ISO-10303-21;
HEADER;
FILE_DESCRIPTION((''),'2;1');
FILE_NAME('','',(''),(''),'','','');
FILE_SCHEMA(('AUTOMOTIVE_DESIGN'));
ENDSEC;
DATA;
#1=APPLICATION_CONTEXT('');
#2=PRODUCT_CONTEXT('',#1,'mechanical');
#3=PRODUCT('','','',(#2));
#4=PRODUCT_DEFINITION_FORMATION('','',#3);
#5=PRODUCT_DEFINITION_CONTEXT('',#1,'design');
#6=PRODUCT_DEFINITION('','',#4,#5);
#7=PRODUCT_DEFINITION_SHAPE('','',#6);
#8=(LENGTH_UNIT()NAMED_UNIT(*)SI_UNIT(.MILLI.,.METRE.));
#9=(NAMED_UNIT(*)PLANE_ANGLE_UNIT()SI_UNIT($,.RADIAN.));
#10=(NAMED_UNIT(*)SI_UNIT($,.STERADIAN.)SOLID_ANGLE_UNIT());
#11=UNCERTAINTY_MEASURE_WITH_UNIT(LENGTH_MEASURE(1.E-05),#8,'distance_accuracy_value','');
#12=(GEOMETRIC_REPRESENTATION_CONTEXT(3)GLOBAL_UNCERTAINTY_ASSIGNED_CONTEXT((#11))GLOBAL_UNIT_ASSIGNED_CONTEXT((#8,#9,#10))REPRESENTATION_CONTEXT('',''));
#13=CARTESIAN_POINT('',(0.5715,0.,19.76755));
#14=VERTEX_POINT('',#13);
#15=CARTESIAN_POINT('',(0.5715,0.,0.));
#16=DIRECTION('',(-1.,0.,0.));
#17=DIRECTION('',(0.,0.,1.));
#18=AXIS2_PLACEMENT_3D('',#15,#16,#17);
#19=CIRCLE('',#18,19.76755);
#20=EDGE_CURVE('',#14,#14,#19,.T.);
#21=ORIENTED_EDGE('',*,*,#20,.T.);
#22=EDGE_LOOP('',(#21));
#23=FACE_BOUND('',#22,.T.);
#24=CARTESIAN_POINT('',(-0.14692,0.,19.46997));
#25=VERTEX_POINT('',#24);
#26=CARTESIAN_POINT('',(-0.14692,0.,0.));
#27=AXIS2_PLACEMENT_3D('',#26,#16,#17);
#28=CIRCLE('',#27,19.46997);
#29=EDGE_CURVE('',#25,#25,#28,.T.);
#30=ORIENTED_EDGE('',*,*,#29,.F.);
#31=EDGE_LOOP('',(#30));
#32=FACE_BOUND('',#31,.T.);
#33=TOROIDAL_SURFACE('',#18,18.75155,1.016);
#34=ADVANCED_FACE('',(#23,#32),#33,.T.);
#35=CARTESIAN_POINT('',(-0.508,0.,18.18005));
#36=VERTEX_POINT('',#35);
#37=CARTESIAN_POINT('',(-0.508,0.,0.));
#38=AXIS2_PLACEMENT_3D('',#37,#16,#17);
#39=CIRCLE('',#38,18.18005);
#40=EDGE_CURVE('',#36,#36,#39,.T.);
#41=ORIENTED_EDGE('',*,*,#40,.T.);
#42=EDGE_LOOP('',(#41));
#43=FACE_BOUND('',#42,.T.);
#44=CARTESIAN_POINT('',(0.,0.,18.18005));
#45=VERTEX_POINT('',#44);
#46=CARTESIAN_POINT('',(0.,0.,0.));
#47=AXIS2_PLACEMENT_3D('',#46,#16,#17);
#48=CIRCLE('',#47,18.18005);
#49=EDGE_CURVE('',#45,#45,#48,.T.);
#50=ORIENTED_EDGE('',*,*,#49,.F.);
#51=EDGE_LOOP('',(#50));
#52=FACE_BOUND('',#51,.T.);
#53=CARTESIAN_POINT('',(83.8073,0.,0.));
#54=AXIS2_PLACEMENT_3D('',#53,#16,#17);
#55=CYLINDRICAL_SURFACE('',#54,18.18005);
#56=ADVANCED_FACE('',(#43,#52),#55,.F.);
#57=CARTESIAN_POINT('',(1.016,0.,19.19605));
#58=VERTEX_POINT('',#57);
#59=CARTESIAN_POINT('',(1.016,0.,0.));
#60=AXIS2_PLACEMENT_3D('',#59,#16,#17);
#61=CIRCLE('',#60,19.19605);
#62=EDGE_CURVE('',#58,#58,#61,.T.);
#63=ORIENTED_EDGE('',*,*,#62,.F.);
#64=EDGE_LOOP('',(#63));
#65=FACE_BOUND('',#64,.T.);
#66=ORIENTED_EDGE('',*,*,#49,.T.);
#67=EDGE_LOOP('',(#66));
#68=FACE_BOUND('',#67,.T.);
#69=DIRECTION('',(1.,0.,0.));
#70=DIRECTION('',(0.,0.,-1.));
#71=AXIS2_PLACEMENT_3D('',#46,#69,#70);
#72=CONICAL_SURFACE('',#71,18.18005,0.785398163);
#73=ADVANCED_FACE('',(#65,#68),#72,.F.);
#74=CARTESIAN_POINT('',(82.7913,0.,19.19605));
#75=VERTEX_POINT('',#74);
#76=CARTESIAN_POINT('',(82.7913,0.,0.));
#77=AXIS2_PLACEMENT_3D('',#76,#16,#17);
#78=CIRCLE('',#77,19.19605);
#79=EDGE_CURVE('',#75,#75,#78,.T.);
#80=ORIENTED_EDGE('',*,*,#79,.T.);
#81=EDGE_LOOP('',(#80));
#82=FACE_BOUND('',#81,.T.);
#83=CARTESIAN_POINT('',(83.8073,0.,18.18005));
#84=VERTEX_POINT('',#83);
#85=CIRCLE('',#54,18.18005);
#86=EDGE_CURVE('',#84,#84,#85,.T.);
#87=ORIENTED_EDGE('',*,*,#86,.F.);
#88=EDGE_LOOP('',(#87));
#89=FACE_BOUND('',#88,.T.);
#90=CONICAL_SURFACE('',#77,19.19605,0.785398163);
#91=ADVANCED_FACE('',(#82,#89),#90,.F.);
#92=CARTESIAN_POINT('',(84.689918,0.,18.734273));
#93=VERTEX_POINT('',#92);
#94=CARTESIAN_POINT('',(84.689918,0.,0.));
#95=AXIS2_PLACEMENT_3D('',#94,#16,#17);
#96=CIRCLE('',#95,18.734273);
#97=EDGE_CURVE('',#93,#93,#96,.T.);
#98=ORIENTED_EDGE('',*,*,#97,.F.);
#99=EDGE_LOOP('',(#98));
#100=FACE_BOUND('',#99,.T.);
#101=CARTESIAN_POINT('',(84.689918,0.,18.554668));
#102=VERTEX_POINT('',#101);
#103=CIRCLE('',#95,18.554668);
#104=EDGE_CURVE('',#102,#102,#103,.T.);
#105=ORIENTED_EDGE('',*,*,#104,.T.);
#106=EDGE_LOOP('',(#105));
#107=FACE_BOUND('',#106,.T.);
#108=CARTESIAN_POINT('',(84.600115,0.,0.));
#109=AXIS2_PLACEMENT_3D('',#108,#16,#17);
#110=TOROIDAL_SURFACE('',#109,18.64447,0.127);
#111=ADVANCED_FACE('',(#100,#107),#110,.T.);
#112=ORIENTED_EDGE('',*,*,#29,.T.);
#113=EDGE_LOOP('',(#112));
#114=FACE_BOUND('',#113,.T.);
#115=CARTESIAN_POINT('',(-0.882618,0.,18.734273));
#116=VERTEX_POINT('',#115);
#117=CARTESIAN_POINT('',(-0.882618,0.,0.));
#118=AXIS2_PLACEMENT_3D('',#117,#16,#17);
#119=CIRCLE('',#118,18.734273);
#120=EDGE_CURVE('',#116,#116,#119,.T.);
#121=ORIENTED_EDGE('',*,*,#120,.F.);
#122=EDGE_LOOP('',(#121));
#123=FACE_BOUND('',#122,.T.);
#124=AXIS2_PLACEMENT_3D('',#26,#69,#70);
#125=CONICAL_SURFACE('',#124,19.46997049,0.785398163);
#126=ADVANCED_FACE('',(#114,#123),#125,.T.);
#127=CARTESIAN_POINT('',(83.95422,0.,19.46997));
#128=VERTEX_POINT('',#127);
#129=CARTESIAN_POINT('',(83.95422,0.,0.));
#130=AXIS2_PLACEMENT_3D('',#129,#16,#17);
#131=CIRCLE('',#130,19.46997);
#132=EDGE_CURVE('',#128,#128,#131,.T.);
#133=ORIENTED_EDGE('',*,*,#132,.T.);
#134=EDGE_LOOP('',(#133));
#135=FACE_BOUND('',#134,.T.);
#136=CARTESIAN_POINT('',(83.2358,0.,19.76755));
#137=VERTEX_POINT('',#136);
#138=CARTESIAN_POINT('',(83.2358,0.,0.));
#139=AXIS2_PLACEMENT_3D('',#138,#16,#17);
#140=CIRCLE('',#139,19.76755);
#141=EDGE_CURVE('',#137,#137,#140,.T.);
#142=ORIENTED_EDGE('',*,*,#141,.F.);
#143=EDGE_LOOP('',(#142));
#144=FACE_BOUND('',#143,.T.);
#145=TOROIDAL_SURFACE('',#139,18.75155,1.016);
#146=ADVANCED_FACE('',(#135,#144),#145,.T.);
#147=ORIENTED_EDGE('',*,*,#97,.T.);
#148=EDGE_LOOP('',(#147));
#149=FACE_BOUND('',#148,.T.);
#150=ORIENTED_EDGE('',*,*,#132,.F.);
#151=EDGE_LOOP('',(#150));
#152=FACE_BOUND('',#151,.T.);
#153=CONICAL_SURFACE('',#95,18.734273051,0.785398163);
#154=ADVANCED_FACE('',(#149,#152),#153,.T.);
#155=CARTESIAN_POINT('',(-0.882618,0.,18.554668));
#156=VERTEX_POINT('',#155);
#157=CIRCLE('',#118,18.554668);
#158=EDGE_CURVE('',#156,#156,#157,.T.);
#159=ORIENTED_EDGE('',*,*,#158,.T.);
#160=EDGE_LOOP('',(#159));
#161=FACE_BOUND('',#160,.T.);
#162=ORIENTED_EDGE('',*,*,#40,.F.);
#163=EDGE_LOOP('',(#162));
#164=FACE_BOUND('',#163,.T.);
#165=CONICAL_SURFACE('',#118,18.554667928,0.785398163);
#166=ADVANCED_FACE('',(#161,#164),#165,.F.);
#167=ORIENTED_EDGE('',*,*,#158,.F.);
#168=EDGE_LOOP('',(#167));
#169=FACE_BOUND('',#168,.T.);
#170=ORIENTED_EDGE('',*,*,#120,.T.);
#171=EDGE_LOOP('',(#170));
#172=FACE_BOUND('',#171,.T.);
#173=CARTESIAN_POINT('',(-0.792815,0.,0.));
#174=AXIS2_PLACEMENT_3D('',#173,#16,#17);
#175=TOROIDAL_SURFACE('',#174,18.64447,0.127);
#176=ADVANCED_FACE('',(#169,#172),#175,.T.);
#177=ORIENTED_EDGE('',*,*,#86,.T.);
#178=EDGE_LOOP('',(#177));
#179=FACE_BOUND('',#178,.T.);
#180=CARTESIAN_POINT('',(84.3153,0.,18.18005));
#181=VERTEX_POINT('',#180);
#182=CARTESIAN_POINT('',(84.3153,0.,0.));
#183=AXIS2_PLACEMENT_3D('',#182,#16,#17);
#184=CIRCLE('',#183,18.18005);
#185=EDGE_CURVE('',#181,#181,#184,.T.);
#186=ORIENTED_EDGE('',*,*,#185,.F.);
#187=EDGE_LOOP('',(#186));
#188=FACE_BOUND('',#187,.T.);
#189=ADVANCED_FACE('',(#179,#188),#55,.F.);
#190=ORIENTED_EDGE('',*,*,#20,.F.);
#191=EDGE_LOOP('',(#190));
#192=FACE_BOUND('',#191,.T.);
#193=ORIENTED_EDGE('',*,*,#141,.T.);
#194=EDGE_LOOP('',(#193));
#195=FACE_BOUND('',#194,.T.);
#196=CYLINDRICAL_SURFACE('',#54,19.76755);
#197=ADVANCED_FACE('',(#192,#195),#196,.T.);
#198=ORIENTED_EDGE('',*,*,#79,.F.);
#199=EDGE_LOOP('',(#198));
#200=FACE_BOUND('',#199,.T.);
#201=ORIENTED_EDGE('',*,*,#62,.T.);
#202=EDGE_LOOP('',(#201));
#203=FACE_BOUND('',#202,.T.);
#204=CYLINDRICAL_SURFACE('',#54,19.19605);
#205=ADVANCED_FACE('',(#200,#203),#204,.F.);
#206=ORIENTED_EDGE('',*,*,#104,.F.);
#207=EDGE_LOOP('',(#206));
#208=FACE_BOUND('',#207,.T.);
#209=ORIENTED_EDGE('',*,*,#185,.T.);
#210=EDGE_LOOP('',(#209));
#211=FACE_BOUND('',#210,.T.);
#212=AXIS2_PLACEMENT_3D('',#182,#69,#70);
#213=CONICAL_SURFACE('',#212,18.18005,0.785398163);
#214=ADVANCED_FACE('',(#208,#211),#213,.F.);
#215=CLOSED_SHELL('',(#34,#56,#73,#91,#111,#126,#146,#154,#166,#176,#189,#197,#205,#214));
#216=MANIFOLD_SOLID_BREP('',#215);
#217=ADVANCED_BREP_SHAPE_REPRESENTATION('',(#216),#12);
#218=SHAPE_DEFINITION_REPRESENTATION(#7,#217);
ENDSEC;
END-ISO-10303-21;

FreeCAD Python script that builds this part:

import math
import FreeCAD as App
import Part
import Sketcher
from FreeCAD import Vector
Q = App.Units.Quantity

doc = App.newDocument("Part")
body = doc.addObject("PartDesign::Body", "Body")

# Sketch on XY plane
sketch1 = body.newObject("Sketcher::SketchObject", "Sketch")
sketch1.AttachmentSupport = (doc.getObject("XY_Plane"), [""])
sketch1.MapMode = "FlatFace"
sketch1.addGeometry([
    Part.LineSegment(Vector(-0.882618, 18.554668, 0), Vector(-0.508, 18.18005, 0)),  # 0
    Part.LineSegment(Vector(-0.508, 18.18005, 0), Vector(0, 18.18005, 0)),  # 1
    Part.LineSegment(Vector(0, 18.18005, 0), Vector(1.016, 19.19605, 0)),  # 2
    Part.LineSegment(Vector(1.016, 19.19605, 0), Vector(82.7913, 19.19605, 0)),  # 3
    Part.LineSegment(Vector(82.7913, 19.19605, 0), Vector(83.8073, 18.18005, 0)),  # 4
    Part.LineSegment(Vector(83.8073, 18.18005, 0), Vector(84.3153, 18.18005, 0)),  # 5
    Part.LineSegment(Vector(84.3153, 18.18005, 0), Vector(84.689918, 18.554668, 0)),  # 6
    Part.ArcOfCircle(Part.Circle(Vector(84.600115, 18.64447, 0), Vector(0, 0, 1), 0.127), math.radians(-45), math.radians(45)),  # 7
    Part.LineSegment(Vector(84.689918, 18.734273, 0), Vector(83.95422, 19.46997, 0)),  # 8
    Part.ArcOfCircle(Part.Circle(Vector(83.2358, 18.75155, 0), Vector(0, 0, 1), 1.016), math.radians(45), math.radians(90)),  # 9
    Part.LineSegment(Vector(83.2358, 19.76755, 0), Vector(0.5715, 19.76755, 0)),  # 10
    Part.ArcOfCircle(Part.Circle(Vector(0.5715, 18.75155, 0), Vector(0, 0, 1), 1.016), math.radians(90), math.radians(135)),  # 11
    Part.LineSegment(Vector(-0.14692, 19.46997, 0), Vector(-0.882618, 18.734273, 0)),  # 12
    Part.ArcOfCircle(Part.Circle(Vector(-0.792815, 18.64447, 0), Vector(0, 0, 1), 0.127), math.radians(135), math.radians(225)),  # 13
], False)
sketch1.addConstraint([
    Sketcher.Constraint("Coincident", 0, 2, 1, 1),
    Sketcher.Constraint("Coincident", 1, 2, 2, 1),
    Sketcher.Constraint("Coincident", 2, 2, 3, 1),
    Sketcher.Constraint("Coincident", 3, 2, 4, 1),
    Sketcher.Constraint("Coincident", 4, 2, 5, 1),
    Sketcher.Constraint("Coincident", 5, 2, 6, 1),
    Sketcher.Constraint("Tangent", 6, 2, 7, 1),
    Sketcher.Constraint("Tangent", 7, 2, 8, 1),
    Sketcher.Constraint("Tangent", 8, 2, 9, 1),
    Sketcher.Constraint("Tangent", 9, 2, 10, 1),
    Sketcher.Constraint("Tangent", 10, 2, 11, 1),
    Sketcher.Constraint("Tangent", 11, 2, 12, 1),
    Sketcher.Constraint("Tangent", 12, 2, 13, 1),
    Sketcher.Constraint("Tangent", 13, 2, 0, 1),
    Sketcher.Constraint("Horizontal", 1),
    Sketcher.Constraint("Horizontal", 3),
    Sketcher.Constraint("Horizontal", 5),
    Sketcher.Constraint("Horizontal", 10),
    Sketcher.Constraint("Equal", 9, 11),
    Sketcher.Constraint("Equal", 7, 13),
    Sketcher.Constraint("PointOnObject", 1, 2, -2),
    Sketcher.Constraint("Perpendicular", 0, 2),
    Sketcher.Constraint("Perpendicular", 2, 4),
    Sketcher.Constraint("Perpendicular", 4, 6),
    Sketcher.Constraint("Perpendicular", 6, 8),
    Sketcher.Constraint("Perpendicular", 8, 12),
    Sketcher.Constraint("Horizontal", 7, 3, 13, 3),
    Sketcher.Constraint("Horizontal", 1, 2, 4, 2),
    Sketcher.Constraint("Horizontal", 8, 2, 11, 2),
    Sketcher.Constraint("Equal", 1, 5),
    Sketcher.Constraint("Radius", 9, Q("0.04 in")),
    Sketcher.Constraint("Radius", 7, Q("0.005 in")),
    Sketcher.Constraint("DistanceX", 1, 1, 1, 2, Q("0.02 in")),
    Sketcher.Constraint("DistanceX", -1, 1, 2, 2, Q("0.04 in")),
    Sketcher.Constraint("DistanceX", 3, 1, 3, 2, Q("3.2195 in")),
    Sketcher.Constraint("DistanceX", 10, 2, 10, 1, Q("3.2545 in")),
    Sketcher.Constraint("DistanceY", 4, 2, 9, 2, Q("0.0625 in")),
    Sketcher.Constraint("DistanceY", -1, 1, 7, 3, 18.64447),
])
revolution = body.newObject("PartDesign::Revolution", "Revolution")
revolution.Profile = sketch1
revolution.ReferenceAxis = (sketch1, ["H_Axis"])
revolution.Angle = 360

doc.recompute()
